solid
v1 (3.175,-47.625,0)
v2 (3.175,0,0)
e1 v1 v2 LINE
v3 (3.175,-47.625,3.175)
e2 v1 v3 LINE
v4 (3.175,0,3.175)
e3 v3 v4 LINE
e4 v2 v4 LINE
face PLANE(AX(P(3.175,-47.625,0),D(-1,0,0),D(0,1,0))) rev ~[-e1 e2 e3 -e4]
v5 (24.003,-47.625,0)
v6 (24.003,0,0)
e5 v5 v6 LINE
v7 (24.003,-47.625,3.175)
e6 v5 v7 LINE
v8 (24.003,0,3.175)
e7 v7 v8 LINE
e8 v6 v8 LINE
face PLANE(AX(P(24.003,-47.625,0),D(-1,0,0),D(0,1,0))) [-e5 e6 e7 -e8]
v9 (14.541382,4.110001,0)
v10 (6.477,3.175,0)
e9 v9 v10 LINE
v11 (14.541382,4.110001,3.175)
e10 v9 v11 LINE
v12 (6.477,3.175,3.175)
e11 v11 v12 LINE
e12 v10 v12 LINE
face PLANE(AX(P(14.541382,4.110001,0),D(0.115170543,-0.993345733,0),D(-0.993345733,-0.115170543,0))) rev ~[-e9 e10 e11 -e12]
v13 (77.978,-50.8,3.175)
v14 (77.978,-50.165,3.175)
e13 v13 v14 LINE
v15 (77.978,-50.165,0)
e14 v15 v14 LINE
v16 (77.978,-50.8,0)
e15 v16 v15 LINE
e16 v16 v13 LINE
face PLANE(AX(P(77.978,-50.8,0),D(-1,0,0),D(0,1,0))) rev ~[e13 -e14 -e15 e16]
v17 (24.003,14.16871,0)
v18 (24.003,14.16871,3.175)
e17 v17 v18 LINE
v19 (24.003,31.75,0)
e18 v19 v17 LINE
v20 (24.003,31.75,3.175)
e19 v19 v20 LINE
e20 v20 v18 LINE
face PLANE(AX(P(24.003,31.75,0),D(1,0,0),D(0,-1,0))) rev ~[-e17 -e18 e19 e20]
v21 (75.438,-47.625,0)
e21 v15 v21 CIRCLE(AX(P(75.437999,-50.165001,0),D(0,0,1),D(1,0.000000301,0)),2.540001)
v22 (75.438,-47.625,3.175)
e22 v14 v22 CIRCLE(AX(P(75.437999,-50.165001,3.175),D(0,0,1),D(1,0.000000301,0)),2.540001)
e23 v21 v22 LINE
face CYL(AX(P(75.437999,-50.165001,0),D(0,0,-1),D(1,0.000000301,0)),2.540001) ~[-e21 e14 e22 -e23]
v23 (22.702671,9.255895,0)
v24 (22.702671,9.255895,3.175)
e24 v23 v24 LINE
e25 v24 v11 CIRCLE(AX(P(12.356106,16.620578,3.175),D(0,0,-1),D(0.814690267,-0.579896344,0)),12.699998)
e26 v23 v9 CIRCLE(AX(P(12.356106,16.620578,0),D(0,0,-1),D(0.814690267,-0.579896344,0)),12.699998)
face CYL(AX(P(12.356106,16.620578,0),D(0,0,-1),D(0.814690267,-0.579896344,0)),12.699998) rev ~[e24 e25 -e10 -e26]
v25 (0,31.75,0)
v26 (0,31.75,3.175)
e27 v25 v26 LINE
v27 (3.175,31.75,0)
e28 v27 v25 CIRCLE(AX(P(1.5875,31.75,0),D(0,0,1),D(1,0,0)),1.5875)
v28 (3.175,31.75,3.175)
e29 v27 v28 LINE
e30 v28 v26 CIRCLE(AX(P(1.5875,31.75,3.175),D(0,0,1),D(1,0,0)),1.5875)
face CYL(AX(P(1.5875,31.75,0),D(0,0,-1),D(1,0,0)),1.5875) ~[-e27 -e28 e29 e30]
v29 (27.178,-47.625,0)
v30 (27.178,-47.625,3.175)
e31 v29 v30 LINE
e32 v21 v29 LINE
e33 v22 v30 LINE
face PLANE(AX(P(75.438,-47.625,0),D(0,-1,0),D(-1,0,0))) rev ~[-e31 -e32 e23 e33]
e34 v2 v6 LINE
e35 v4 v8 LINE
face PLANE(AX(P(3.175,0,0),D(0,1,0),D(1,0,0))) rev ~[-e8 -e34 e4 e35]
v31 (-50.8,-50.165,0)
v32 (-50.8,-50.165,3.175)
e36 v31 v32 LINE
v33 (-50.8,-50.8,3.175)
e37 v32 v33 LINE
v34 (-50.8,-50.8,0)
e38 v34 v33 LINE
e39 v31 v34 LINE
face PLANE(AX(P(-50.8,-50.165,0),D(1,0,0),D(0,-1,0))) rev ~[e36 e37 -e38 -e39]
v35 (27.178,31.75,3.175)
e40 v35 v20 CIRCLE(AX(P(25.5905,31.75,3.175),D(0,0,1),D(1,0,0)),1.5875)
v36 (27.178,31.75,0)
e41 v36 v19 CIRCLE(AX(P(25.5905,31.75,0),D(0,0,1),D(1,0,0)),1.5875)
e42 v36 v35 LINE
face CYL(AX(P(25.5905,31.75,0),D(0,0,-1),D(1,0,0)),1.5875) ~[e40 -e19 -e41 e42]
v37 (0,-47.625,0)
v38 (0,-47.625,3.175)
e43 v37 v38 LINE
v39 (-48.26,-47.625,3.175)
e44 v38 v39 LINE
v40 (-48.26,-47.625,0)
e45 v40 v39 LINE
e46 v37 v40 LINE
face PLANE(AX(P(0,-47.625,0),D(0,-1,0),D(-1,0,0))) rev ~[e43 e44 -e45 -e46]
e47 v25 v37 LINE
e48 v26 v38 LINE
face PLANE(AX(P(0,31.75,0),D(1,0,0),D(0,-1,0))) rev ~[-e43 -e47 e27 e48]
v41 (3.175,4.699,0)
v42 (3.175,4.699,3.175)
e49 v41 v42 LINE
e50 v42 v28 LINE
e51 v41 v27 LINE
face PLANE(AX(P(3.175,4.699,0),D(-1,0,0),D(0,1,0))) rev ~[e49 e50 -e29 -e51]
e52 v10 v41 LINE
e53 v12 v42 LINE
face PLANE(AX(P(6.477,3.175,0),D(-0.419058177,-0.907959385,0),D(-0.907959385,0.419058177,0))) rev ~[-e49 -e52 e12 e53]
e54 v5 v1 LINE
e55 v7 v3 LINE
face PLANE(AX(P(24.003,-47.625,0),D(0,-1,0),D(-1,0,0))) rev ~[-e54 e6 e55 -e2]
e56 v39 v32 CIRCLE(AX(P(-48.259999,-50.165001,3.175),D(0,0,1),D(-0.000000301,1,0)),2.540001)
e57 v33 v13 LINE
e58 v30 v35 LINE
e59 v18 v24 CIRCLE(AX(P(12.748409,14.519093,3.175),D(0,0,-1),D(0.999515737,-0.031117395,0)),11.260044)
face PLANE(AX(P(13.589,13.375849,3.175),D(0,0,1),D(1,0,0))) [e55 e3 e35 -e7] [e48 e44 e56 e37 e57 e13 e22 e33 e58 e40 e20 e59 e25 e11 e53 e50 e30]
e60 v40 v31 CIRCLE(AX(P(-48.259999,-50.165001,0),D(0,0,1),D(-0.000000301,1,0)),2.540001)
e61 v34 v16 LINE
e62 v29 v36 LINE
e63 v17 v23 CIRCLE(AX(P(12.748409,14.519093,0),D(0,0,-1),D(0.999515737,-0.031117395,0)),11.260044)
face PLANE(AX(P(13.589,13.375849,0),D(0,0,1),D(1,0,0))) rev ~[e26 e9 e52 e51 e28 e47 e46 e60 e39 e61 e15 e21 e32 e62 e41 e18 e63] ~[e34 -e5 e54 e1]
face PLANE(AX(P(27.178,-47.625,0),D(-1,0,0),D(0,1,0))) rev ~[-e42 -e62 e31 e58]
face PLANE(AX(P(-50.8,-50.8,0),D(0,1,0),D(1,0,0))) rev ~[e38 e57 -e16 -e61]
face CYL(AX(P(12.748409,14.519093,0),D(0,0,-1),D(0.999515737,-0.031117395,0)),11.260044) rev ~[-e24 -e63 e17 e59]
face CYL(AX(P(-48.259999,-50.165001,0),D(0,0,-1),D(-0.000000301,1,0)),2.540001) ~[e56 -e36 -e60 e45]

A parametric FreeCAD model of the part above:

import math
import FreeCAD as App
import Part
import Sketcher
Q = App.Units.Quantity

doc = App.newDocument("Part")
body = doc.addObject("PartDesign::Body", "Body")

# Sketch on XY plane
sketch1 = body.newObject("Sketcher::SketchObject", "Sketch")
sketch1.AttachmentSupport = (doc.getObject("XY_Plane"), [""])
sketch1.MapMode = "FlatFace"
sketch1.addGeometry([
    Part.LineSegment(App.Vector(0, 31.8, 0), App.Vector(0, -47.6, 0)),  # 0
    Part.LineSegment(App.Vector(0, -47.6, 0), App.Vector(-48.3, -47.6, 0)),  # 1
    Part.ArcOfCircle(Part.Circle(App.Vector(-48.3, -50.2, 0), App.Vector(0, 0, 1), 2.5), math.radians(90), math.radians(180)),  # 2
    Part.LineSegment(App.Vector(-50.8, -50.2, 0), App.Vector(-50.8, -50.8, 0)),  # 3
    Part.LineSegment(App.Vector(-50.8, -50.8, 0), App.Vector(78, -50.8, 0)),  # 4
    Part.LineSegment(App.Vector(78, -50.8, 0), App.Vector(78, -50.2, 0)),  # 5
    Part.ArcOfCircle(Part.Circle(App.Vector(75.4, -50.2, 0), App.Vector(0, 0, 1), 2.5), math.radians(0), math.radians(90)),  # 6
    Part.LineSegment(App.Vector(75.4, -47.6, 0), App.Vector(27.2, -47.6, 0)),  # 7
    Part.LineSegment(App.Vector(27.2, -47.6, 0), App.Vector(27.2, 31.8, 0)),  # 8
    Part.ArcOfCircle(Part.Circle(App.Vector(25.6, 31.8, 0), App.Vector(0, 0, 1), 1.6), math.radians(0), math.radians(180)),  # 9
    Part.LineSegment(App.Vector(24, 31.8, 0), App.Vector(24, 14.2, 0)),  # 10
    Part.ArcOfCircle(Part.Circle(App.Vector(12.7, 14.5, 0), App.Vector(0, 0, 1), 11.3), math.radians(-28), math.radians(-2)),  # 11
    Part.ArcOfCircle(Part.Circle(App.Vector(12.4, 16.6, 0), App.Vector(0, 0, 1), 12.7), math.radians(-80), math.radians(-35)),  # 12
    Part.LineSegment(App.Vector(14.5, 4.1, 0), App.Vector(6.5, 3.2, 0)),  # 13
    Part.LineSegment(App.Vector(6.5, 3.2, 0), App.Vector(3.2, 4.7, 0)),  # 14
    Part.LineSegment(App.Vector(3.2, 4.7, 0), App.Vector(3.2, 31.8, 0)),  # 15
    Part.ArcOfCircle(Part.Circle(App.Vector(1.6, 31.8, 0), App.Vector(0, 0, 1), 1.6), math.radians(0), math.radians(180)),  # 16
    Part.LineSegment(App.Vector(24, -47.6, 0), App.Vector(3.2, -47.6, 0)),  # 17
    Part.LineSegment(App.Vector(3.2, -47.6, 0), App.Vector(3.2, 0, 0)),  # 18
    Part.LineSegment(App.Vector(3.2, 0, 0), App.Vector(24, 0, 0)),  # 19
    Part.LineSegment(App.Vector(24, 0, 0), App.Vector(24, -47.6, 0)),  # 20
], False)
sketch1.addConstraint([
    Sketcher.Constraint("Coincident", 0, 2, 1, 1),
    Sketcher.Constraint("Tangent", 1, 2, 2, 1),
    Sketcher.Constraint("Tangent", 2, 2, 3, 1),
    Sketcher.Constraint("Coincident", 3, 2, 4, 1),
    Sketcher.Constraint("Coincident", 4, 2, 5, 1),
    Sketcher.Constraint("Tangent", 5, 2, 6, 1),
    Sketcher.Constraint("Tangent", 6, 2, 7, 1),
    Sketcher.Constraint("Coincident", 7, 2, 8, 1),
    Sketcher.Constraint("Tangent", 8, 2, 9, 1),
    Sketcher.Constraint("Tangent", 9, 2, 10, 1),
    Sketcher.Constraint("Coincident", 10, 2, 11, 2),
    Sketcher.Constraint("Coincident", 11, 1, 12, 2),
    Sketcher.Constraint("Coincident", 12, 1, 13, 1),
    Sketcher.Constraint("Coincident", 13, 2, 14, 1),
    Sketcher.Constraint("Coincident", 14, 2, 15, 1),
    Sketcher.Constraint("Tangent", 15, 2, 16, 1),
    Sketcher.Constraint("Tangent", 16, 2, 0, 1),
    Sketcher.Constraint("Coincident", 17, 2, 18, 1),
    Sketcher.Constraint("Coincident", 18, 2, 19, 1),
    Sketcher.Constraint("Coincident", 19, 2, 20, 1),
    Sketcher.Constraint("Coincident", 20, 2, 17, 1),
    Sketcher.Constraint("Vertical", 0),
    Sketcher.Constraint("Horizontal", 1),
    Sketcher.Constraint("Vertical", 3),
    Sketcher.Constraint("Horizontal", 4),
    Sketcher.Constraint("Vertical", 5),
    Sketcher.Constraint("Horizontal", 7),
    Sketcher.Constraint("Vertical", 8),
    Sketcher.Constraint("Vertical", 10),
    Sketcher.Constraint("Vertical", 15),
    Sketcher.Constraint("Horizontal", 17),
    Sketcher.Constraint("Vertical", 18),
    Sketcher.Constraint("Horizontal", 19),
    Sketcher.Constraint("Vertical", 20),
    Sketcher.Constraint("Equal", 2, 6),
    Sketcher.Constraint("Equal", 9, 16),
    Sketcher.Constraint("PointOnObject", 0, 2, -2),
    Sketcher.Constraint("PointOnObject", 18, 2, -1),
    Sketcher.Constraint("Horizontal", 2, 3, 6, 3),
    Sketcher.Constraint("Horizontal", 9, 3, 16, 3),
    Sketcher.Constraint("Horizontal", 7, 2, 17, 2),
    Sketcher.Constraint("Vertical", 15, 2, 17, 2),
    Sketcher.Constraint("Vertical", 10, 2, 19, 2),
    Sketcher.Constraint("Equal", 1, 7),
    Sketcher.Constraint("Radius", 2, Q("0.1 in")),
    Sketcher.Constraint("Radius", 12, Q("0.4999999 in")),
    Sketcher.Constraint("DistanceX", 1, 2, 1, 1, Q("1.9 in")),
    Sketcher.Constraint("DistanceY", 3, 2, -1, 1, Q("2 in")),
    Sketcher.Constraint("Radius", 9, Q("0.0625 in")),
    Sketcher.Constraint("DistanceY", 17, 2, 13, 2, Q("2 in")),
    Sketcher.Constraint("DistanceX", 4, 1, 4, 2, Q("5.07 in")),
    Sketcher.Constraint("DistanceY", 0, 2, 0, 1, Q("3.125 in")),
    Sketcher.Constraint("DistanceY", 3, 2, 3, 1, Q("0.025 in")),
    Sketcher.Constraint("DistanceY", 15, 1, 15, 2, Q("1.065 in")),
    Sketcher.Constraint("DistanceX", 13, 2, 10, 2, Q("0.69 in")),
    Sketcher.Constraint("Radius", 11, Q("11.260044 mm")),
    Sketcher.Constraint("DistanceX", 11, 3, 11, 1, Q("0.3919001 in")),
    Sketcher.Constraint("DistanceY", 10, 2, 10, 1, Q("17.58129 mm")),
    Sketcher.Constraint("DistanceY", -1, 1, 12, 1, Q("4.110001 mm")),
    Sketcher.Constraint("DistanceX", -1, 1, 11, 3, Q("12.748409 mm")),
    Sketcher.Constraint("DistanceY", 2, 3, 12, 3, Q("66.785578 mm")),
])
pad1 = body.newObject("PartDesign::Pad", "Pad")
pad1.Profile = sketch1
pad1.Length = Q("0.125 in")

doc.recompute()
